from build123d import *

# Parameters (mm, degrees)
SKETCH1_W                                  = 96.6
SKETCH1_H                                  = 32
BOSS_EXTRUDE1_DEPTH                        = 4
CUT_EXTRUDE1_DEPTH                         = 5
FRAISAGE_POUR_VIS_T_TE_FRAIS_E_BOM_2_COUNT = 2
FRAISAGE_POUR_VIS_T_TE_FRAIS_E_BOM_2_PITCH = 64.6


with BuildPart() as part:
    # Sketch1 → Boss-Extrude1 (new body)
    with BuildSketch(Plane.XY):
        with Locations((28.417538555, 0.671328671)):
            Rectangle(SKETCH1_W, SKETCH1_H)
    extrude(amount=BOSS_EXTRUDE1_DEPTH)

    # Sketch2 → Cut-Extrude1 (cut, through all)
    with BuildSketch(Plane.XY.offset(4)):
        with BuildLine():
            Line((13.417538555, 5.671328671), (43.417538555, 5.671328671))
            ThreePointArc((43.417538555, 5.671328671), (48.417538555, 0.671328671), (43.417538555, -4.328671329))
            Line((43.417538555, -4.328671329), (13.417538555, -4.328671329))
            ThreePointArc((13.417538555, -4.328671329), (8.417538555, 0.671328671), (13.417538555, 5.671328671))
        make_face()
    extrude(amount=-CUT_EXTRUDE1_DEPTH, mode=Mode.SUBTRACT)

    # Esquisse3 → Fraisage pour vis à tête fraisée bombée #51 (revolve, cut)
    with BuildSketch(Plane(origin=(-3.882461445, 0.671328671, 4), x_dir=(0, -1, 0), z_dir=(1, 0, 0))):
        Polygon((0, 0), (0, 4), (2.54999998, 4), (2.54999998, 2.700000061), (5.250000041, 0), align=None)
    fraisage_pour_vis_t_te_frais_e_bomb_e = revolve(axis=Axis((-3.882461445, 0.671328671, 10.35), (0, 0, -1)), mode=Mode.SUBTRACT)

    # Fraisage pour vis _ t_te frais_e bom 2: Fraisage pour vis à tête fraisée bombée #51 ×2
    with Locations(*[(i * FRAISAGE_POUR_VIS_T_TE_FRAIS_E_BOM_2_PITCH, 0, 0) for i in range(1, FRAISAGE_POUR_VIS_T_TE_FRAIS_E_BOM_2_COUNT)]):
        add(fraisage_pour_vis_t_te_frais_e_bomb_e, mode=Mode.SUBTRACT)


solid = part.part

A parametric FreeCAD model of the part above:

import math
import FreeCAD as App
import Part
import Sketcher
Q = App.Units.Quantity


def add_polygon(sketch, points):
    """Adds a closed chain of lines whose ends are joined by coincident constraints."""
    first, n = sketch.GeometryCount, len(points)
    for a, b in zip(points, points[1:] + points[:1]):
        sketch.addGeometry(Part.LineSegment(App.Vector(*a, 0), App.Vector(*b, 0)), False)
    for i in range(n):
        sketch.addConstraint(Sketcher.Constraint("Coincident", first + i, 2, first + (i + 1) % n, 1))

doc = App.newDocument("Part")
body = doc.addObject("PartDesign::Body", "Body")

# Sketch on XY plane
sketch1 = body.newObject("Sketcher::SketchObject", "Sketch")
sketch1.AttachmentSupport = (doc.getObject("XY_Plane"), [""])
sketch1.MapMode = "FlatFace"
add_polygon(sketch1, [(-19.882461, 16.671329), (-19.882461, -15.328671), (76.717539, -15.328671), (76.717539, 16.671329)])  # lines 0-3
sketch1.addConstraint(Sketcher.Constraint("Vertical", 0))
sketch1.addConstraint(Sketcher.Constraint("Horizontal", 1))
sketch1.addConstraint(Sketcher.Constraint("Vertical", 2))
sketch1.addConstraint(Sketcher.Constraint("Horizontal", 3))
sketch1.addConstraint(Sketcher.Constraint("DistanceY", 0, 2, 0, 1, Q("32 mm")))
sketch1.addConstraint(Sketcher.Constraint("DistanceX", 1, 1, 1, 2, Q("96.6 mm")))
sketch1.addConstraint(Sketcher.Constraint("DistanceX", 0, 2, -1, 1, Q("19.882461 mm")))
sketch1.addConstraint(Sketcher.Constraint("DistanceY", 0, 2, -1, 1, Q("15.328671 mm")))
pad1 = body.newObject("PartDesign::Pad", "Pad")
pad1.Profile = sketch1
pad1.Length = 4

# Sketch on XY plane
sketch2 = body.newObject("Sketcher::SketchObject", "Sketch001")
sketch2.AttachmentSupport = (doc.getObject("XY_Plane"), [""])
sketch2.MapMode = "FlatFace"
sketch2.AttachmentOffset = App.Placement(App.Vector(0, 0, 4), App.Rotation())
sketch2.addGeometry(Part.LineSegment(App.Vector(43.417539, 5.671329, 0), App.Vector(13.417539, 5.671329, 0)), False)
sketch2.addGeometry(Part.ArcOfCircle(Part.Circle(App.Vector(13.417539, 0.671329, 0), App.Vector(0, 0, 1), 5), math.radians(90), math.radians(270)), False)
sketch2.addGeometry(Part.LineSegment(App.Vector(13.417539, -4.328671, 0), App.Vector(43.417539, -4.328671, 0)), False)
sketch2.addGeometry(Part.ArcOfCircle(Part.Circle(App.Vector(43.417539, 0.671329, 0), App.Vector(0, 0, 1), 5), math.radians(-90), math.radians(90)), False)
sketch2.addConstraint(Sketcher.Constraint("Tangent", 0, 2, 1, 1))
sketch2.addConstraint(Sketcher.Constraint("Tangent", 1, 2, 2, 1))
sketch2.addConstraint(Sketcher.Constraint("Tangent", 2, 2, 3, 1))
sketch2.addConstraint(Sketcher.Constraint("Tangent", 3, 2, 0, 1))
sketch2.addConstraint(Sketcher.Constraint("Horizontal", 0))
sketch2.addConstraint(Sketcher.Constraint("Horizontal", 2))
sketch2.addConstraint(Sketcher.Constraint("Radius", 1, Q("5 mm")))
sketch2.addConstraint(Sketcher.Constraint("DistanceX", 0, 2, 0, 1, Q("30 mm")))
sketch2.addConstraint(Sketcher.Constraint("DistanceX", -1, 1, 1, 3, Q("13.417539 mm")))
sketch2.addConstraint(Sketcher.Constraint("DistanceY", -1, 1, 1, 3, Q("0.671329 mm")))
pocket1 = body.newObject("PartDesign::Pocket", "Pocket")
pocket1.Profile = sketch2
pocket1.Type = "ThroughAll"

# Sketch on YZ plane
sketch3 = body.newObject("Sketcher::SketchObject", "Sketch002")
sketch3.AttachmentSupport = (doc.getObject("YZ_Plane"), [""])
sketch3.MapMode = "FlatFace"
sketch3.AttachmentOffset = App.Placement(App.Vector(0, 0, -3.882461), App.Rotation())
add_polygon(sketch3, [(0.671329, 0), (0.671329, 4), (-4.578671, 4), (-1.878671, 1.3), (-1.878671, 0)])  # lines 0-4
sketch3.addGeometry(Part.LineSegment(App.Vector(0.671329, 4, 0), App.Vector(0.671329, 0, 0)), True)  # axis
sketch3.addConstraint(Sketcher.Constraint("Vertical", 0))
sketch3.addConstraint(Sketcher.Constraint("Horizontal", 1))
sketch3.addConstraint(Sketcher.Constraint("Vertical", 3))
sketch3.addConstraint(Sketcher.Constraint("Horizontal", 4))
sketch3.addConstraint(Sketcher.Constraint("Vertical", 5))
sketch3.addConstraint(Sketcher.Constraint("Coincident", 5, 1, 0, 2))
sketch3.addConstraint(Sketcher.Constraint("PointOnObject", 3, 2, -1))
sketch3.addConstraint(Sketcher.Constraint("PointOnObject", 5, 2, -1))
sketch3.addConstraint(Sketcher.Constraint("DistanceY", 0, 1, 0, 2, Q("4 mm")))
sketch3.addConstraint(Sketcher.Constraint("Angle", 2, Q("-45 deg")))
sketch3.addConstraint(Sketcher.Constraint("DistanceY", 3, 2, 3, 1, Q("1.3 mm")))
sketch3.addConstraint(Sketcher.Constraint("DistanceX", 1, 2, 1, 1, Q("5.25 mm")))
sketch3.addConstraint(Sketcher.Constraint("DistanceX", -1, 1, 0, 2, Q("0.671329 mm")))
groove = body.newObject("PartDesign::Groove", "Groove")
groove.Profile = sketch3
groove.ReferenceAxis = (sketch3, ["Axis0"])
groove.Angle = 360
doc.recompute()

linearpattern = body.newObject("PartDesign::LinearPattern", "LinearPattern")
linearpattern.Originals = [groove]
linearpattern.Direction = (doc.getObject("X_Axis"), [""])
linearpattern.Mode = "offset"
linearpattern.Offset = 64.6
linearpattern.Occurrences = 2
body.Tip = linearpattern

doc.recompute()
